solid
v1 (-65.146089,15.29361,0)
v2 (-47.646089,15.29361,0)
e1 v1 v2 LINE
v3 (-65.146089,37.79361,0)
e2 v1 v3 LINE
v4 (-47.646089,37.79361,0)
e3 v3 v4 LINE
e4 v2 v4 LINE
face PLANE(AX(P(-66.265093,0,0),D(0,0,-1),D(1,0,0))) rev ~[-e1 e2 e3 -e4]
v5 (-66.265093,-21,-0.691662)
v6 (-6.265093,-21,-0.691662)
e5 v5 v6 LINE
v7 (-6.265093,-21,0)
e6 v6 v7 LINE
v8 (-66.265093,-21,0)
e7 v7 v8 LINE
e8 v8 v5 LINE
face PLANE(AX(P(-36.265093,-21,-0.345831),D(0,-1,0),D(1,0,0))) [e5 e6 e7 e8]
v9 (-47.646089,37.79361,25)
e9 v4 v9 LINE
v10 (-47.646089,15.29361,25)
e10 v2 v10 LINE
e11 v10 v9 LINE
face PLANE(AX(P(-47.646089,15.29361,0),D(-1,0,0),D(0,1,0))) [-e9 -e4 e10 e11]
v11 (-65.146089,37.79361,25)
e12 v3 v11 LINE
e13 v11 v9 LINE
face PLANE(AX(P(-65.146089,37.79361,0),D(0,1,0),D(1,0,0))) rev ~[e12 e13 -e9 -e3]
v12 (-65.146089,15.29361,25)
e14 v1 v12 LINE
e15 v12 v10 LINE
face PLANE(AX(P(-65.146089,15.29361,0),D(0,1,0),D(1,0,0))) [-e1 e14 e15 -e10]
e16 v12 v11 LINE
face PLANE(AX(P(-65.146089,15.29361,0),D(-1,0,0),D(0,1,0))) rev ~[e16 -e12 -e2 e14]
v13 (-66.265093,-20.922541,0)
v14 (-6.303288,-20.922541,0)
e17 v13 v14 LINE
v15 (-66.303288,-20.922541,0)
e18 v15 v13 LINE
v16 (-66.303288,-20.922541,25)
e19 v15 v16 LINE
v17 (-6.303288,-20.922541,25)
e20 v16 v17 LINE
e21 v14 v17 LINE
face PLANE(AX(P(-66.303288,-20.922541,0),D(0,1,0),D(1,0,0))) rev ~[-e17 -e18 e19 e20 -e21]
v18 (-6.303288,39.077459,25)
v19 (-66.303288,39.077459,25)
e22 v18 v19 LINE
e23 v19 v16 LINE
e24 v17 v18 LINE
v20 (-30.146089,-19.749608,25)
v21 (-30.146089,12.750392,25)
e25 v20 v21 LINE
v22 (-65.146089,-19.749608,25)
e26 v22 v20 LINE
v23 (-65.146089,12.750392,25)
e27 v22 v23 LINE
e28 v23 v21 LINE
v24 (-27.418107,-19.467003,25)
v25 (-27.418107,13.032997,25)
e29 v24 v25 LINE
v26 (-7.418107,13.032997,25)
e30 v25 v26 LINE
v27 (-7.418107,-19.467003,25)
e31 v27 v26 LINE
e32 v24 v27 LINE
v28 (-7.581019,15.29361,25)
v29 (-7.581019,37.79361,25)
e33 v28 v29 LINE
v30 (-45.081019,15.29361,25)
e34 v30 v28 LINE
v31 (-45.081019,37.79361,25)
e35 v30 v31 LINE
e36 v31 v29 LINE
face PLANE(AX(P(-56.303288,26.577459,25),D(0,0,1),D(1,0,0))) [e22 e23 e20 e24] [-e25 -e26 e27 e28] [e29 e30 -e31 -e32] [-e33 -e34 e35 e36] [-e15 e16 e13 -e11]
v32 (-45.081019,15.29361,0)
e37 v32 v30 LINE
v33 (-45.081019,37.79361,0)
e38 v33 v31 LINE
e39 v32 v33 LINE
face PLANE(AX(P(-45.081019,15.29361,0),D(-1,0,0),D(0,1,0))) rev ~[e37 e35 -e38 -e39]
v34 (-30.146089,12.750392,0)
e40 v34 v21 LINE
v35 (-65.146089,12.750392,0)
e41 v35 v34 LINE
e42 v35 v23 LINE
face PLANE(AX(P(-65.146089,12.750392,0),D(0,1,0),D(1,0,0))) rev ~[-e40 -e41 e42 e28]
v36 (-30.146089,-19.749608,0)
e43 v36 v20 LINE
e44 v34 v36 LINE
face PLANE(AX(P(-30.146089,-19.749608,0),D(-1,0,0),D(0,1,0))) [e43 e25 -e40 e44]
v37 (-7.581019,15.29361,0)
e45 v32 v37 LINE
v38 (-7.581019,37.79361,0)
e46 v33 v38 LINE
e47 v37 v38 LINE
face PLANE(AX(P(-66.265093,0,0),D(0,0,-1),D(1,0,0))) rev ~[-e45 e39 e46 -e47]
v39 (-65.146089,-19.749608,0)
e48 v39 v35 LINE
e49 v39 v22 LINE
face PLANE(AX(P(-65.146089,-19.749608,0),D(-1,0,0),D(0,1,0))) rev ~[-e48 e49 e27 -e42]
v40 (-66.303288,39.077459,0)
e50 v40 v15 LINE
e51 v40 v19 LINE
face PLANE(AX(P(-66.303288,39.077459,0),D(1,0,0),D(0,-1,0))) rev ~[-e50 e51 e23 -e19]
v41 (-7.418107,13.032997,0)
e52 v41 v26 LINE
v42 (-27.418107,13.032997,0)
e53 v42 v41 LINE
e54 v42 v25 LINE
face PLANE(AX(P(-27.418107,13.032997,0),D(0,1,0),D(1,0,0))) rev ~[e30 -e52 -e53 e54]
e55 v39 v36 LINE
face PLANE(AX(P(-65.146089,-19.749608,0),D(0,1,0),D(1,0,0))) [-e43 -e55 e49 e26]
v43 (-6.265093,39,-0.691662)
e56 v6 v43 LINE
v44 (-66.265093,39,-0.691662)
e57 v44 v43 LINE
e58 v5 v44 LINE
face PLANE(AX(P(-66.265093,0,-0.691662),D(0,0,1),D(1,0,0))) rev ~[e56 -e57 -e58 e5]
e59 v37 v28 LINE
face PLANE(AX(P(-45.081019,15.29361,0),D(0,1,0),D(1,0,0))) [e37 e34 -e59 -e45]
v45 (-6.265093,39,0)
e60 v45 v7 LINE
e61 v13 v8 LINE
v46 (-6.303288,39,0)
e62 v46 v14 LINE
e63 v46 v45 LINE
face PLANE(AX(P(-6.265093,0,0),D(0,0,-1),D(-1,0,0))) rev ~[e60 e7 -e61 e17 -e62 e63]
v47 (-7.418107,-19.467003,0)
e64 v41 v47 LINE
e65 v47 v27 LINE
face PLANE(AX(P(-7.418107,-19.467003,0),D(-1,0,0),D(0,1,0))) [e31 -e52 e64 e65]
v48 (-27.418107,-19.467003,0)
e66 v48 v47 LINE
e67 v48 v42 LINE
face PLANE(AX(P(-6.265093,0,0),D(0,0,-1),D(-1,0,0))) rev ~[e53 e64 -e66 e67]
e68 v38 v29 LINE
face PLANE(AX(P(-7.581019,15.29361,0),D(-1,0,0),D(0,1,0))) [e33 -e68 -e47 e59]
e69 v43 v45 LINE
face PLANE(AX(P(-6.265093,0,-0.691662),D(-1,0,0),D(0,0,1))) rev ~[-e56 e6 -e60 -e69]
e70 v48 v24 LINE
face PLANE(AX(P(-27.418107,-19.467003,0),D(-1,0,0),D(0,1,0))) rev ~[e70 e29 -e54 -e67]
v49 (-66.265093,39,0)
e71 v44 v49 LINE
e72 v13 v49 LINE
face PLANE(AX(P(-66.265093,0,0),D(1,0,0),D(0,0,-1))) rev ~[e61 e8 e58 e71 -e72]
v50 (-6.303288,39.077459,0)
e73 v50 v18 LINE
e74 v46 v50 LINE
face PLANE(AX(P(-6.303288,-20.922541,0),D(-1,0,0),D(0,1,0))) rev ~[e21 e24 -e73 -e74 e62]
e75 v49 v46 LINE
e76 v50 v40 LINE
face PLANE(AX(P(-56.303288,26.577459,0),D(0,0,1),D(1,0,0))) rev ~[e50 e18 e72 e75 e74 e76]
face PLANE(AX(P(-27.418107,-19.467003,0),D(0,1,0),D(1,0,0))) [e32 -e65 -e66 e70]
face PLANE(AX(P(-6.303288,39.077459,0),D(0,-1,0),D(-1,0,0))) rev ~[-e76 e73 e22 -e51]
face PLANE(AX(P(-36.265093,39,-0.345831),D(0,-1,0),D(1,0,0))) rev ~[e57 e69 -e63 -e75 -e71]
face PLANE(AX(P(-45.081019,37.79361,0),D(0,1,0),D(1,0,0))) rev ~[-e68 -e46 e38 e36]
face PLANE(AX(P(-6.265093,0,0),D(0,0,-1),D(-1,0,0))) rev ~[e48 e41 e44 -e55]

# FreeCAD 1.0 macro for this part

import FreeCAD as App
import Part
import Sketcher
from FreeCAD import Vector
Q = App.Units.Quantity


def add_polygon(sketch, points):
    """Adds a closed chain of lines whose ends are joined by coincident constraints."""
    first, n = sketch.GeometryCount, len(points)
    for a, b in zip(points, points[1:] + points[:1]):
        sketch.addGeometry(Part.LineSegment(App.Vector(*a, 0), App.Vector(*b, 0)), False)
    for i in range(n):
        sketch.addConstraint(Sketcher.Constraint("Coincident", first + i, 2, first + (i + 1) % n, 1))

doc = App.newDocument("Part")
body = doc.addObject("PartDesign::Body", "Body")

# Sketch on XY plane
sketch1 = doc.addObject("Sketcher::SketchObject", "Sketch")
body.addObject(sketch1)
sketch1.AttachmentSupport = (doc.XY_Plane, [""])
sketch1.MapMode = "FlatFace"
add_polygon(sketch1, [(-66.303288, 39.077459), (-66.303288, -20.922541), (-6.303288, -20.922541), (-6.303288, 39.077459)])  # lines 0-3
add_polygon(sketch1, [(-30.146089, -19.749608), (-65.146089, -19.749608), (-65.146089, 12.750392), (-30.146089, 12.750392)])  # lines 4-7
add_polygon(sketch1, [(-7.418107, -19.467003), (-27.418107, -19.467003), (-27.418107, 13.032997), (-7.418107, 13.032997)])  # lines 8-11
add_polygon(sketch1, [(-47.646089, 15.29361), (-65.146089, 15.29361), (-65.146089, 37.79361), (-47.646089, 37.79361)])  # lines 12-15
add_polygon(sketch1, [(-7.581019, 15.29361), (-45.081019, 15.29361), (-45.081019, 37.79361), (-7.581019, 37.79361)])  # lines 16-19
sketch1.addConstraint([
    Sketcher.Constraint("Vertical", 0),
    Sketcher.Constraint("Horizontal", 1),
    Sketcher.Constraint("Vertical", 2),
    Sketcher.Constraint("Horizontal", 3),
    Sketcher.Constraint("Horizontal", 4),
    Sketcher.Constraint("Vertical", 5),
    Sketcher.Constraint("Horizontal", 6),
    Sketcher.Constraint("Vertical", 7),
    Sketcher.Constraint("Horizontal", 8),
    Sketcher.Constraint("Vertical", 9),
    Sketcher.Constraint("Horizontal", 10),
    Sketcher.Constraint("Vertical", 11),
    Sketcher.Constraint("Horizontal", 12),
    Sketcher.Constraint("Vertical", 13),
    Sketcher.Constraint("Horizontal", 14),
    Sketcher.Constraint("Vertical", 15),
    Sketcher.Constraint("Horizontal", 16),
    Sketcher.Constraint("Vertical", 17),
    Sketcher.Constraint("Horizontal", 18),
    Sketcher.Constraint("Vertical", 19),
    Sketcher.Constraint("Horizontal", 15, 2, 16, 2),
    Sketcher.Constraint("Horizontal", 14, 2, 17, 2),
    Sketcher.Constraint("Vertical", 5, 2, 12, 2),
    Sketcher.Constraint("Equal", 3, 0),
    Sketcher.Constraint("Equal", 7, 9),
    Sketcher.Constraint("DistanceX", 1, 1, 1, 2, Q("60 mm")),
    Sketcher.Constraint("DistanceX", 4, 2, 4, 1, Q("35 mm")),
    Sketcher.Constraint("DistanceX", 8, 2, 8, 1, Q("20 mm")),
    Sketcher.Constraint("DistanceX", 12, 2, 12, 1, Q("17.5 mm")),
    Sketcher.Constraint("DistanceX", 16, 2, 16, 1, Q("37.5 mm")),
    Sketcher.Constraint("DistanceY", 5, 1, 5, 2, Q("32.5 mm")),
    Sketcher.Constraint("DistanceY", 13, 1, 13, 2, Q("22.5 mm")),
    Sketcher.Constraint("DistanceX", 0, 2, 4, 2, Q("1.157199 mm")),
    Sketcher.Constraint("DistanceY", 0, 2, -1, 1, Q("20.922541 mm")),
    Sketcher.Constraint("DistanceX", 1, 2, -1, 1, Q("6.303288 mm")),
    Sketcher.Constraint("DistanceY", -1, 1, 12, 2, Q("15.29361 mm")),
    Sketcher.Constraint("DistanceX", 16, 2, -1, 1, Q("45.081019 mm")),
    Sketcher.Constraint("DistanceX", 8, 2, 1, 2, Q("21.114819 mm")),
    Sketcher.Constraint("DistanceY", 1, 2, 8, 2, Q("1.455538 mm")),
    Sketcher.Constraint("DistanceY", 5, 2, 13, 2, Q("25.043218 mm")),
])
pad1 = doc.addObject("PartDesign::Pad", "Pad")
body.addObject(pad1)
pad1.Profile = sketch1
pad1.Length = 25

# Sketch on XZ plane
sketch2 = doc.addObject("Sketcher::SketchObject", "Sketch001")
body.addObject(sketch2)
sketch2.AttachmentSupport = (doc.XZ_Plane, [""])
sketch2.MapMode = "FlatFace"
add_polygon(sketch2, [(-66.265093, 0), (-66.265093, -0.691662), (-6.265093, -0.691662), (-6.265093, 0)])  # lines 0-3
sketch2.addConstraint([
    Sketcher.Constraint("Vertical", 0),
    Sketcher.Constraint("Horizontal", 1),
    Sketcher.Constraint("Vertical", 2),
    Sketcher.Constraint("Horizontal", 3),
    Sketcher.Constraint("PointOnObject", 2, 2, -1),
    Sketcher.Constraint("DistanceX", 1, 1, 1, 2, Q("60 mm")),
    Sketcher.Constraint("DistanceY", 0, 2, 0, 1, Q("0.691662 mm")),
    Sketcher.Constraint("DistanceX", 0, 2, -1, 1, Q("66.265093 mm")),
])
pad2 = doc.addObject("PartDesign::Pad", "Pad001")
body.addObject(pad2)
pad2.Profile = sketch2
pad2.Length = 39
pad2.Reversed = True

# Sketch on XZ plane
sketch3 = doc.addObject("Sketcher::SketchObject", "Sketch002")
body.addObject(sketch3)
sketch3.AttachmentSupport = (doc.XZ_Plane, [""])
sketch3.MapMode = "FlatFace"
add_polygon(sketch3, [(-6.265093, -0.691662), (-6.265093, 0), (-66.265093, 0), (-66.265093, -0.691662)])  # lines 0-3
sketch3.addConstraint([
    Sketcher.Constraint("Vertical", 0),
    Sketcher.Constraint("Horizontal", 1),
    Sketcher.Constraint("Vertical", 2),
    Sketcher.Constraint("Horizontal", 3),
    Sketcher.Constraint("PointOnObject", 0, 2, -1),
    Sketcher.Constraint("DistanceX", 1, 2, 1, 1, Q("60 mm")),
    Sketcher.Constraint("DistanceY", 0, 1, 0, 2, Q("0.691662 mm")),
    Sketcher.Constraint("DistanceX", 0, 2, -1, 1, Q("6.265093 mm")),
])
pad3 = doc.addObject("PartDesign::Pad", "Pad002")
body.addObject(pad3)
pad3.Profile = sketch3
pad3.Length = 21

doc.recompute()
